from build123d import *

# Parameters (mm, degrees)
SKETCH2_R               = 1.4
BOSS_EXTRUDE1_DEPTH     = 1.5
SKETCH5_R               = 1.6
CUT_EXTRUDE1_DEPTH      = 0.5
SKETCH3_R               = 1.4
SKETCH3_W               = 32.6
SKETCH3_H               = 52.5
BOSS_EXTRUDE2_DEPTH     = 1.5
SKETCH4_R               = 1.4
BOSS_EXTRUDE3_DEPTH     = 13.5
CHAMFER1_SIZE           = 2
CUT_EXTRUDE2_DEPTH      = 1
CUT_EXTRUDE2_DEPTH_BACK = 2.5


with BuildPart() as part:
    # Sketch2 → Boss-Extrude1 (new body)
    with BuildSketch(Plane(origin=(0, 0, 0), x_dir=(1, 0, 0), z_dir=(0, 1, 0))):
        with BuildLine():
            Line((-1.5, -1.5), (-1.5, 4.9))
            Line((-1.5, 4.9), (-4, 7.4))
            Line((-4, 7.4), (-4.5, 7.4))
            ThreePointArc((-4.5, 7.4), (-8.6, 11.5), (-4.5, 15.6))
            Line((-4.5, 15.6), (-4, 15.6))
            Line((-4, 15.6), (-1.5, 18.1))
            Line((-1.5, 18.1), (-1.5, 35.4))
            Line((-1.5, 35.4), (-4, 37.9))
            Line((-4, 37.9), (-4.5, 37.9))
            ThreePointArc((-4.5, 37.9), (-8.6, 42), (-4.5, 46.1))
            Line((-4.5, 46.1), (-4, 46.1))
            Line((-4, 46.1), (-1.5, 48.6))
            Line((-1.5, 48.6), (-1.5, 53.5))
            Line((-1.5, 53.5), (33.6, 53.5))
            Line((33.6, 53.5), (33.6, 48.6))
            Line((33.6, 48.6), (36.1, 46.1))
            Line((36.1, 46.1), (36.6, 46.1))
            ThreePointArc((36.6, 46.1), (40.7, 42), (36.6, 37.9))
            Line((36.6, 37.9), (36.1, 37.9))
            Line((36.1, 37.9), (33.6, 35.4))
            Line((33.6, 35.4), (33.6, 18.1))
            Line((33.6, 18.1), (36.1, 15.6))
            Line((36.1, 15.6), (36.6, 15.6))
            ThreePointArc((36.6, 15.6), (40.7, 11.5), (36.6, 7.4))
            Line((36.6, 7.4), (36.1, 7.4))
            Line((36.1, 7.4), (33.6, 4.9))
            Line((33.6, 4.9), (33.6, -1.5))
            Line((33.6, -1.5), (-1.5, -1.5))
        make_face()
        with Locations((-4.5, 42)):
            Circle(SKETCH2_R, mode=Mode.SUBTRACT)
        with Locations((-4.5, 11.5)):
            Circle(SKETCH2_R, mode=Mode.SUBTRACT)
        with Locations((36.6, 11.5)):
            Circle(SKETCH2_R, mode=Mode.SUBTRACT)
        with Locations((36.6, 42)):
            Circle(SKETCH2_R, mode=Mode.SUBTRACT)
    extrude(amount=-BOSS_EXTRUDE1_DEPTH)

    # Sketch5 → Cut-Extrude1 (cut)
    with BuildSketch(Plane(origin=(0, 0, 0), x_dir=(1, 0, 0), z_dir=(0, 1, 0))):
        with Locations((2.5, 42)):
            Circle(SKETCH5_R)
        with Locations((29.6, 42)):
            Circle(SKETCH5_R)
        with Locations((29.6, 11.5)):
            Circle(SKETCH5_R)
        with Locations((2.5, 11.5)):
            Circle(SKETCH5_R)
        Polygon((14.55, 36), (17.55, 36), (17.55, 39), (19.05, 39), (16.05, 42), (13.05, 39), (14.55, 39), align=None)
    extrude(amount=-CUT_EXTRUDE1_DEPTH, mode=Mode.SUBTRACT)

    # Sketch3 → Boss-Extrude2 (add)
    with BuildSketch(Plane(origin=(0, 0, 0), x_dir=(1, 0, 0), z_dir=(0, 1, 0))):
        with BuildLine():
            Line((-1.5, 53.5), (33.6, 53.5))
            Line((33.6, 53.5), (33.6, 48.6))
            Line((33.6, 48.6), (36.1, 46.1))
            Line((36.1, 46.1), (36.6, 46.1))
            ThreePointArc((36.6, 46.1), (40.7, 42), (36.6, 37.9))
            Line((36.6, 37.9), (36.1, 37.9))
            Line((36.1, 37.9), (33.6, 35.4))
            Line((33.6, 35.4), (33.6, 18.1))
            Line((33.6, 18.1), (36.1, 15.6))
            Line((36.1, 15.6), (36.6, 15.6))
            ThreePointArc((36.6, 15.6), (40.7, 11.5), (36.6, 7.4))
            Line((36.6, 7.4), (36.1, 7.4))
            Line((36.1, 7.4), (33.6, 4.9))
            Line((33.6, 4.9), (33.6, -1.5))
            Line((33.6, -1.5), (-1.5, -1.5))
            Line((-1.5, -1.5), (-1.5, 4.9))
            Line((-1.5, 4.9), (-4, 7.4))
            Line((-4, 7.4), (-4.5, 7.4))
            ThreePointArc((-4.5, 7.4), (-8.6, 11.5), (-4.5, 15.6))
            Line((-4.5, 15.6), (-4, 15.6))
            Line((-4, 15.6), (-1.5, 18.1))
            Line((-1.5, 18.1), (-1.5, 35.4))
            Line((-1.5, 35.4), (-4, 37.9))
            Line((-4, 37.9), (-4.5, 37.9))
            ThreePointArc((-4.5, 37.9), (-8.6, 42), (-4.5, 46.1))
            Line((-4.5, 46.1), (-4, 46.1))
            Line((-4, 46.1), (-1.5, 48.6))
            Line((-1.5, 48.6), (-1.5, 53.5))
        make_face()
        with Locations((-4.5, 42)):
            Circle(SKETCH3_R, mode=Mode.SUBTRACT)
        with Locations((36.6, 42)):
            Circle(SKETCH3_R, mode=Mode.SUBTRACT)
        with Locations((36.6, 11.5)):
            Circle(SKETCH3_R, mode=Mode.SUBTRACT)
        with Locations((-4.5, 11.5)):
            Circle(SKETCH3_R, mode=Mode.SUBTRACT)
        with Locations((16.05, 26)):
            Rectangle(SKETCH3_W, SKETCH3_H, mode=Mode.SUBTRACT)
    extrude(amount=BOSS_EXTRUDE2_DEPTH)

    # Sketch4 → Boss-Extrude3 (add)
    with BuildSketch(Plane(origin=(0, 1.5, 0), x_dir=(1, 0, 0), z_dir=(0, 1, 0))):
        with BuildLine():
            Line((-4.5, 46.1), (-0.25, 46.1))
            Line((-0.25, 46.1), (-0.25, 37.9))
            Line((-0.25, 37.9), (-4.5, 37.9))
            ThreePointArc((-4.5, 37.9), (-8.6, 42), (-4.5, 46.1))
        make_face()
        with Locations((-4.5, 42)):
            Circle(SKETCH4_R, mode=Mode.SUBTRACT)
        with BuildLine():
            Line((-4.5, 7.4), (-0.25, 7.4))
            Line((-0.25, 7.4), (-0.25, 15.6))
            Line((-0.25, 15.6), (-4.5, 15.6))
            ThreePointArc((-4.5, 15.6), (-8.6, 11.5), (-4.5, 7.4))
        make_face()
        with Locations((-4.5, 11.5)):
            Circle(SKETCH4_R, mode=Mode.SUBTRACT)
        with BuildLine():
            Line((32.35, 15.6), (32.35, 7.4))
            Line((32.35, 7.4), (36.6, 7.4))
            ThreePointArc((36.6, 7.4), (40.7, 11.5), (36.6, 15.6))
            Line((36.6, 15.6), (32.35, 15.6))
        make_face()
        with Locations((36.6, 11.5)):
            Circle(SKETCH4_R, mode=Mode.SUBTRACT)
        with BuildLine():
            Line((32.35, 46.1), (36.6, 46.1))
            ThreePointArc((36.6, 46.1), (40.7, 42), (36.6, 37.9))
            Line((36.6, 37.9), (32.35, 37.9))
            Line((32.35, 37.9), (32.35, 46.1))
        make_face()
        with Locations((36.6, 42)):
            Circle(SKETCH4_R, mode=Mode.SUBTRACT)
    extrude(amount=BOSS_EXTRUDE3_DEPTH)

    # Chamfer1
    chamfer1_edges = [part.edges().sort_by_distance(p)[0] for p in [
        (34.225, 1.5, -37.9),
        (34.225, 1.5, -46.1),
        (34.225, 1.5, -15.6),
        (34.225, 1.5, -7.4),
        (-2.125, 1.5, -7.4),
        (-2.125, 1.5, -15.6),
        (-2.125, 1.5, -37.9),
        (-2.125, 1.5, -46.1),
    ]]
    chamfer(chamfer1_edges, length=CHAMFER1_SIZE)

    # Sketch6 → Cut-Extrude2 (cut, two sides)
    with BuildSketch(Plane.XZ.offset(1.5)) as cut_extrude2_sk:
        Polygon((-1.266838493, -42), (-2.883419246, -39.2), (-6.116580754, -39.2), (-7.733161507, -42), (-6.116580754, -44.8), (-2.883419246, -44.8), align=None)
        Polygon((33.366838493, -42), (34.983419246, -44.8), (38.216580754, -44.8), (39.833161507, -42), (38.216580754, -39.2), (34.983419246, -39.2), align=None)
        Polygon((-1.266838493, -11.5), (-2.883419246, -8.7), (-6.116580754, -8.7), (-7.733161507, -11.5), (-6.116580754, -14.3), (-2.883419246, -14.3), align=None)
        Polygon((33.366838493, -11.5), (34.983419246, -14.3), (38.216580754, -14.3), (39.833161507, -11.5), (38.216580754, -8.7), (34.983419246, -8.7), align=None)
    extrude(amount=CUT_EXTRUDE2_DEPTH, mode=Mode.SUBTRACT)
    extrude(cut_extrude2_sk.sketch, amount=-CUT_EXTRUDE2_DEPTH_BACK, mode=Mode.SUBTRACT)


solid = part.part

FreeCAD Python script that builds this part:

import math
import FreeCAD as App
import Part
import Sketcher

V = App.Vector
Q = App.Units.Quantity


def edges_at(feature, points):
    """Names of the edges that pass closest to the given points."""
    edges = feature.Shape.Edges
    near = lambda p: min(range(len(edges)), key=lambda i: edges[i].distToShape(Part.Vertex(*p))[0])
    return sorted({f"Edge{near(p) + 1}" for p in points})


def add_polygon(sketch, points):
    """Adds a closed chain of lines whose ends are joined by coincident constraints."""
    first, n = sketch.GeometryCount, len(points)
    for a, b in zip(points, points[1:] + points[:1]):
        sketch.addGeometry(Part.LineSegment(App.Vector(*a, 0), App.Vector(*b, 0)), False)
    for i in range(n):
        sketch.addConstraint(Sketcher.Constraint("Coincident", first + i, 2, first + (i + 1) % n, 1))

doc = App.newDocument("Part")
body = doc.addObject("PartDesign::Body", "Body")

# Sketch on XZ plane
sketch1 = body.newObject("Sketcher::SketchObject", "Sketch")
sketch1.AttachmentSupport = (doc.getObject("XZ_Plane"), [""])
sketch1.MapMode = "FlatFace"
sketch1.addGeometry([
    Part.LineSegment(V(-1.5, -4.9, 0), V(-1.5, 1.5, 0)),  # 0
    Part.LineSegment(V(-1.5, 1.5, 0), V(33.6, 1.5, 0)),  # 1
    Part.LineSegment(V(33.6, 1.5, 0), V(33.6, -4.9, 0)),  # 2
    Part.LineSegment(V(33.6, -4.9, 0), V(36.1, -7.4, 0)),  # 3
    Part.LineSegment(V(36.1, -7.4, 0), V(36.6, -7.4, 0)),  # 4
    Part.ArcOfCircle(Part.Circle(V(36.6, -11.5, 0), V(0, 0, 1), 4.1), math.radians(-90), math.radians(90)),  # 5
    Part.LineSegment(V(36.6, -15.6, 0), V(36.1, -15.6, 0)),  # 6
    Part.LineSegment(V(36.1, -15.6, 0), V(33.6, -18.1, 0)),  # 7
    Part.LineSegment(V(33.6, -18.1, 0), V(33.6, -35.4, 0)),  # 8
    Part.LineSegment(V(33.6, -35.4, 0), V(36.1, -37.9, 0)),  # 9
    Part.LineSegment(V(36.1, -37.9, 0), V(36.6, -37.9, 0)),  # 10
    Part.ArcOfCircle(Part.Circle(V(36.6, -42, 0), V(0, 0, 1), 4.1), math.radians(-90), math.radians(90)),  # 11
    Part.LineSegment(V(36.6, -46.1, 0), V(36.1, -46.1, 0)),  # 12
    Part.LineSegment(V(36.1, -46.1, 0), V(33.6, -48.6, 0)),  # 13
    Part.LineSegment(V(33.6, -48.6, 0), V(33.6, -53.5, 0)),  # 14
    Part.LineSegment(V(33.6, -53.5, 0), V(-1.5, -53.5, 0)),  # 15
    Part.LineSegment(V(-1.5, -53.5, 0), V(-1.5, -48.6, 0)),  # 16
    Part.LineSegment(V(-1.5, -48.6, 0), V(-4, -46.1, 0)),  # 17
    Part.LineSegment(V(-4, -46.1, 0), V(-4.5, -46.1, 0)),  # 18
    Part.ArcOfCircle(Part.Circle(V(-4.5, -42, 0), V(0, 0, 1), 4.1), math.radians(90), math.radians(270)),  # 19
    Part.LineSegment(V(-4.5, -37.9, 0), V(-4, -37.9, 0)),  # 20
    Part.LineSegment(V(-4, -37.9, 0), V(-1.5, -35.4, 0)),  # 21
    Part.LineSegment(V(-1.5, -35.4, 0), V(-1.5, -18.1, 0)),  # 22
    Part.LineSegment(V(-1.5, -18.1, 0), V(-4, -15.6, 0)),  # 23
    Part.LineSegment(V(-4, -15.6, 0), V(-4.5, -15.6, 0)),  # 24
    Part.ArcOfCircle(Part.Circle(V(-4.5, -11.5, 0), V(0, 0, 1), 4.1), math.radians(90), math.radians(270)),  # 25
    Part.LineSegment(V(-4.5, -7.4, 0), V(-4, -7.4, 0)),  # 26
    Part.LineSegment(V(-4, -7.4, 0), V(-1.5, -4.9, 0)),  # 27
    Part.Circle(V(36.6, -11.5, 0), V(0, 0, 1), 1.4),  # 28
    Part.Circle(V(-4.5, -11.5, 0), V(0, 0, 1), 1.4),  # 29
    Part.Circle(V(36.6, -42, 0), V(0, 0, 1), 1.4),  # 30
    Part.Circle(V(-4.5, -42, 0), V(0, 0, 1), 1.4),  # 31
], False)
sketch1.addConstraint([
    Sketcher.Constraint("Coincident", 0, 2, 1, 1),
    Sketcher.Constraint("Coincident", 1, 2, 2, 1),
    Sketcher.Constraint("Coincident", 2, 2, 3, 1),
    Sketcher.Constraint("Coincident", 3, 2, 4, 1),
    Sketcher.Constraint("Tangent", 4, 2, 5, 2),
    Sketcher.Constraint("Tangent", 5, 1, 6, 1),
    Sketcher.Constraint("Coincident", 6, 2, 7, 1),
    Sketcher.Constraint("Coincident", 7, 2, 8, 1),
    Sketcher.Constraint("Coincident", 8, 2, 9, 1),
    Sketcher.Constraint("Coincident", 9, 2, 10, 1),
    Sketcher.Constraint("Tangent", 10, 2, 11, 2),
    Sketcher.Constraint("Tangent", 11, 1, 12, 1),
    Sketcher.Constraint("Coincident", 12, 2, 13, 1),
    Sketcher.Constraint("Coincident", 13, 2, 14, 1),
    Sketcher.Constraint("Coincident", 14, 2, 15, 1),
    Sketcher.Constraint("Coincident", 15, 2, 16, 1),
    Sketcher.Constraint("Coincident", 16, 2, 17, 1),
    Sketcher.Constraint("Coincident", 17, 2, 18, 1),
    Sketcher.Constraint("Tangent", 18, 2, 19, 2),
    Sketcher.Constraint("Tangent", 19, 1, 20, 1),
    Sketcher.Constraint("Coincident", 20, 2, 21, 1),
    Sketcher.Constraint("Coincident", 21, 2, 22, 1),
    Sketcher.Constraint("Coincident", 22, 2, 23, 1),
    Sketcher.Constraint("Coincident", 23, 2, 24, 1),
    Sketcher.Constraint("Tangent", 24, 2, 25, 2),
    Sketcher.Constraint("Tangent", 25, 1, 26, 1),
    Sketcher.Constraint("Coincident", 26, 2, 27, 1),
    Sketcher.Constraint("Coincident", 27, 2, 0, 1),
    Sketcher.Constraint("Vertical", 0),
    Sketcher.Constraint("Horizontal", 1),
    Sketcher.Constraint("Vertical", 2),
    Sketcher.Constraint("Horizontal", 4),
    Sketcher.Constraint("Horizontal", 6),
    Sketcher.Constraint("Vertical", 8),
    Sketcher.Constraint("Horizontal", 10),
    Sketcher.Constraint("Horizontal", 12),
    Sketcher.Constraint("Vertical", 14),
    Sketcher.Constraint("Horizontal", 15),
    Sketcher.Constraint("Vertical", 16),
    Sketcher.Constraint("Horizontal", 18),
    Sketcher.Constraint("Horizontal", 20),
    Sketcher.Constraint("Vertical", 22),
    Sketcher.Constraint("Horizontal", 24),
    Sketcher.Constraint("Horizontal", 26),
    Sketcher.Constraint("Coincident", 28, 3, 5, 3),
    Sketcher.Constraint("Coincident", 29, 3, 25, 3),
    Sketcher.Constraint("Coincident", 30, 3, 11, 3),
    Sketcher.Constraint("Coincident", 31, 3, 19, 3),
    Sketcher.Constraint("Equal", 5, 11),
    Sketcher.Constraint("Equal", 11, 19),
    Sketcher.Constraint("Equal", 19, 25),
    Sketcher.Constraint("Equal", 28, 29),
    Sketcher.Constraint("Equal", 29, 30),
    Sketcher.Constraint("Equal", 30, 31),
    Sketcher.Constraint("Perpendicular", 3, 7),
    Sketcher.Constraint("Perpendicular", 7, 9),
    Sketcher.Constraint("Perpendicular", 9, 13),
    Sketcher.Constraint("Perpendicular", 13, 17),
    Sketcher.Constraint("Perpendicular", 17, 21),
    Sketcher.Constraint("Perpendicular", 21, 23),
    Sketcher.Constraint("Perpendicular", 23, 27),
    Sketcher.Constraint("Horizontal", 11, 3, 19, 3),
    Sketcher.Constraint("Horizontal", 5, 3, 25, 3),
    Sketcher.Constraint("Horizontal", 13, 2, 16, 2),
    Sketcher.Constraint("Horizontal", 8, 2, 21, 2),
    Sketcher.Constraint("Horizontal", 7, 2, 22, 2),
    Sketcher.Constraint("Horizontal", 2, 2, 27, 2),
    Sketcher.Constraint("Vertical", 5, 3, 11, 3),
    Sketcher.Constraint("Vertical", 19, 3, 25, 3),
    Sketcher.Constraint("Vertical", 3, 2, 6, 2),
    Sketcher.Constraint("Vertical", 2, 2, 7, 2),
    Sketcher.Constraint("Vertical", 6, 2, 9, 2),
    Sketcher.Constraint("Vertical", 9, 2, 12, 2),
    Sketcher.Constraint("Vertical", 8, 2, 13, 2),
    Sketcher.Constraint("Vertical", 0, 2, 15, 2),
    Sketcher.Constraint("Vertical", 17, 2, 20, 2),
    Sketcher.Constraint("Vertical", 16, 2, 21, 2),
    Sketcher.Constraint("Equal", 12, 18),
    Sketcher.Constraint("Diameter", 28, 2.8),
    Sketcher.Constraint("Radius", 5, 4.1),
    Sketcher.Constraint("DistanceX", 1, 1, 1, 2, 35.1),
    Sketcher.Constraint("DistanceX", 4, 1, 4, 2, 0.5),
    Sketcher.Constraint("DistanceY", 0, 1, 0, 2, 6.4),
    Sketcher.Constraint("DistanceY", 8, 2, 8, 1, 17.3),
    Sketcher.Constraint("DistanceY", 14, 2, 14, 1, 4.9),
    Sketcher.Constraint("DistanceY", 11, 3, -1, 1, 42.0),
    Sketcher.Constraint("DistanceX", 17, 2, -1, 1, 4.0),
    Sketcher.Constraint("DistanceX", 25, 3, 0, 2, 3.0),
])
pad1 = body.newObject("PartDesign::Pad", "Pad")
pad1.Profile = sketch1
pad1.Length = 1.5

# Sketch on XZ plane
sketch2 = body.newObject("Sketcher::SketchObject", "Sketch001")
sketch2.AttachmentSupport = (doc.getObject("XZ_Plane"), [""])
sketch2.MapMode = "FlatFace"
sketch2.addGeometry(Part.Circle(V(2.5, -42, 0), V(0, 0, 1), 1.6), False)  # 0
sketch2.addGeometry(Part.Circle(V(29.6, -42, 0), V(0, 0, 1), 1.6), False)  # 1
sketch2.addGeometry(Part.Circle(V(29.6, -11.5, 0), V(0, 0, 1), 1.6), False)  # 2
sketch2.addGeometry(Part.Circle(V(2.5, -11.5, 0), V(0, 0, 1), 1.6), False)  # 3
add_polygon(sketch2, [(14.6, -36), (17.6, -36), (17.6, -39), (19.1, -39), (16.1, -42), (13.1, -39), (14.6, -39)])  # lines 4-10
sketch2.addConstraint([
    Sketcher.Constraint("Horizontal", 4),
    Sketcher.Constraint("Vertical", 5),
    Sketcher.Constraint("Horizontal", 6),
    Sketcher.Constraint("Horizontal", 9),
    Sketcher.Constraint("Vertical", 10),
    Sketcher.Constraint("Equal", 0, 1),
    Sketcher.Constraint("Equal", 1, 2),
    Sketcher.Constraint("Equal", 2, 3),
    Sketcher.Constraint("Perpendicular", 7, 8),
    Sketcher.Constraint("Horizontal", 0, 3, 1, 3),
    Sketcher.Constraint("Horizontal", 2, 3, 3, 3),
    Sketcher.Constraint("Horizontal", 1, 3, 7, 2),
    Sketcher.Constraint("Horizontal", 6, 2, 8, 2),
    Sketcher.Constraint("Vertical", 1, 3, 2, 3),
    Sketcher.Constraint("Vertical", 0, 3, 3, 3),
    Sketcher.Constraint("Equal", 6, 9),
    Sketcher.Constraint("Equal", 4, 5),
    Sketcher.Constraint("Equal", 7, 8),
    Sketcher.Constraint("Diameter", 0, 3.2),
    Sketcher.Constraint("DistanceX", 4, 1, 4, 2, 3.0),
    Sketcher.Constraint("DistanceX", 6, 1, 6, 2, 1.5),
    Sketcher.Constraint("DistanceY", 0, 3, -1, 1, 42.0),
    Sketcher.Constraint("DistanceX", -1, 1, 0, 3, 2.5),
    Sketcher.Constraint("DistanceX", -1, 1, 1, 3, 29.6),
    Sketcher.Constraint("DistanceY", 2, 3, -1, 1, 11.5),
    Sketcher.Constraint("DistanceX", -1, 1, 4, 2, 17.55),
])
pocket1 = body.newObject("PartDesign::Pocket", "Pocket")
pocket1.Profile = sketch2
pocket1.Length = 0.5
pocket1.Reversed = True

# Sketch on XZ plane
sketch3 = body.newObject("Sketcher::SketchObject", "Sketch002")
sketch3.AttachmentSupport = (doc.getObject("XZ_Plane"), [""])
sketch3.MapMode = "FlatFace"
sketch3.addGeometry(Part.LineSegment(V(33.6, -53.5, 0), V(-1.5, -53.5, 0)), False)  # 0
sketch3.addGeometry(Part.LineSegment(V(-1.5, -53.5, 0), V(-1.5, -48.6, 0)), False)  # 1
sketch3.addGeometry(Part.LineSegment(V(-1.5, -48.6, 0), V(-4, -46.1, 0)), False)  # 2
sketch3.addGeometry(Part.LineSegment(V(-4, -46.1, 0), V(-4.5, -46.1, 0)), False)  # 3
sketch3.addGeometry(Part.ArcOfCircle(Part.Circle(V(-4.5, -42, 0), V(0, 0, 1), 4.1), math.radians(90), math.radians(270)), False)  # 4
sketch3.addGeometry(Part.LineSegment(V(-4.5, -37.9, 0), V(-4, -37.9, 0)), False)  # 5
sketch3.addGeometry(Part.LineSegment(V(-4, -37.9, 0), V(-1.5, -35.4, 0)), False)  # 6
sketch3.addGeometry(Part.LineSegment(V(-1.5, -35.4, 0), V(-1.5, -18.1, 0)), False)  # 7
sketch3.addGeometry(Part.LineSegment(V(-1.5, -18.1, 0), V(-4, -15.6, 0)), False)  # 8
sketch3.addGeometry(Part.LineSegment(V(-4, -15.6, 0), V(-4.5, -15.6, 0)), False)  # 9
sketch3.addGeometry(Part.ArcOfCircle(Part.Circle(V(-4.5, -11.5, 0), V(0, 0, 1), 4.1), math.radians(90), math.radians(270)), False)  # 10
sketch3.addGeometry(Part.LineSegment(V(-4.5, -7.4, 0), V(-4, -7.4, 0)), False)  # 11
sketch3.addGeometry(Part.LineSegment(V(-4, -7.4, 0), V(-1.5, -4.9, 0)), False)  # 12
sketch3.addGeometry(Part.LineSegment(V(-1.5, -4.9, 0), V(-1.5, 1.5, 0)), False)  # 13
sketch3.addGeometry(Part.LineSegment(V(-1.5, 1.5, 0), V(33.6, 1.5, 0)), False)  # 14
sketch3.addGeometry(Part.LineSegment(V(33.6, 1.5, 0), V(33.6, -4.9, 0)), False)  # 15
sketch3.addGeometry(Part.LineSegment(V(33.6, -4.9, 0), V(36.1, -7.4, 0)), False)  # 16
sketch3.addGeometry(Part.LineSegment(V(36.1, -7.4, 0), V(36.6, -7.4, 0)), False)  # 17
sketch3.addGeometry(Part.ArcOfCircle(Part.Circle(V(36.6, -11.5, 0), V(0, 0, 1), 4.1), math.radians(-90), math.radians(90)), False)  # 18
sketch3.addGeometry(Part.LineSegment(V(36.6, -15.6, 0), V(36.1, -15.6, 0)), False)  # 19
sketch3.addGeometry(Part.LineSegment(V(36.1, -15.6, 0), V(33.6, -18.1, 0)), False)  # 20
sketch3.addGeometry(Part.LineSegment(V(33.6, -18.1, 0), V(33.6, -35.4, 0)), False)  # 21
sketch3.addGeometry(Part.LineSegment(V(33.6, -35.4, 0), V(36.1, -37.9, 0)), False)  # 22
sketch3.addGeometry(Part.LineSegment(V(36.1, -37.9, 0), V(36.6, -37.9, 0)), False)  # 23
sketch3.addGeometry(Part.ArcOfCircle(Part.Circle(V(36.6, -42, 0), V(0, 0, 1), 4.1), math.radians(-90), math.radians(90)), False)  # 24
sketch3.addGeometry(Part.LineSegment(V(36.6, -46.1, 0), V(36.1, -46.1, 0)), False)  # 25
sketch3.addGeometry(Part.LineSegment(V(36.1, -46.1, 0), V(33.6, -48.6, 0)), False)  # 26
sketch3.addGeometry(Part.LineSegment(V(33.6, -48.6, 0), V(33.6, -53.5, 0)), False)  # 27
sketch3.addGeometry(Part.Circle(V(36.6, -11.5, 0), V(0, 0, 1), 1.4), False)  # 28
sketch3.addGeometry(Part.Circle(V(-4.5, -11.5, 0), V(0, 0, 1), 1.4), False)  # 29
sketch3.addGeometry(Part.Circle(V(36.6, -42, 0), V(0, 0, 1), 1.4), False)  # 30
add_polygon(sketch3, [(-0.2, 0.2), (-0.2, -52.2), (32.4, -52.2), (32.4, 0.2)])  # lines 31-34
sketch3.addGeometry(Part.Circle(V(-4.5, -42, 0), V(0, 0, 1), 1.4), False)  # 35
sketch3.addConstraint([
    Sketcher.Constraint("Coincident", 0, 2, 1, 1),
    Sketcher.Constraint("Coincident", 1, 2, 2, 1),
    Sketcher.Constraint("Coincident", 2, 2, 3, 1),
    Sketcher.Constraint("Tangent", 3, 2, 4, 2),
    Sketcher.Constraint("Tangent", 4, 1, 5, 1),
    Sketcher.Constraint("Coincident", 5, 2, 6, 1),
    Sketcher.Constraint("Coincident", 6, 2, 7, 1),
    Sketcher.Constraint("Coincident", 7, 2, 8, 1),
    Sketcher.Constraint("Coincident", 8, 2, 9, 1),
    Sketcher.Constraint("Tangent", 9, 2, 10, 2),
    Sketcher.Constraint("Tangent", 10, 1, 11, 1),
    Sketcher.Constraint("Coincident", 11, 2, 12, 1),
    Sketcher.Constraint("Coincident", 12, 2, 13, 1),
    Sketcher.Constraint("Coincident", 13, 2, 14, 1),
    Sketcher.Constraint("Coincident", 14, 2, 15, 1),
    Sketcher.Constraint("Coincident", 15, 2, 16, 1),
    Sketcher.Constraint("Coincident", 16, 2, 17, 1),
    Sketcher.Constraint("Tangent", 17, 2, 18, 2),
    Sketcher.Constraint("Tangent", 18, 1, 19, 1),
    Sketcher.Constraint("Coincident", 19, 2, 20, 1),
    Sketcher.Constraint("Coincident", 20, 2, 21, 1),
    Sketcher.Constraint("Coincident", 21, 2, 22, 1),
    Sketcher.Constraint("Coincident", 22, 2, 23, 1),
    Sketcher.Constraint("Tangent", 23, 2, 24, 2),
    Sketcher.Constraint("Tangent", 24, 1, 25, 1),
    Sketcher.Constraint("Coincident", 25, 2, 26, 1),
    Sketcher.Constraint("Coincident", 26, 2, 27, 1),
    Sketcher.Constraint("Coincident", 27, 2, 0, 1),
    Sketcher.Constraint("Horizontal", 0),
    Sketcher.Constraint("Vertical", 1),
    Sketcher.Constraint("Horizontal", 3),
    Sketcher.Constraint("Horizontal", 5),
    Sketcher.Constraint("Vertical", 7),
    Sketcher.Constraint("Horizontal", 9),
    Sketcher.Constraint("Horizontal", 11),
    Sketcher.Constraint("Vertical", 13),
    Sketcher.Constraint("Horizontal", 14),
    Sketcher.Constraint("Vertical", 15),
    Sketcher.Constraint("Horizontal", 17),
    Sketcher.Constraint("Horizontal", 19),
    Sketcher.Constraint("Vertical", 21),
    Sketcher.Constraint("Horizontal", 23),
    Sketcher.Constraint("Horizontal", 25),
    Sketcher.Constraint("Vertical", 27),
    Sketcher.Constraint("Vertical", 31),
    Sketcher.Constraint("Horizontal", 32),
    Sketcher.Constraint("Vertical", 33),
    Sketcher.Constraint("Horizontal", 34),
    Sketcher.Constraint("Coincident", 28, 3, 18, 3),
    Sketcher.Constraint("Coincident", 29, 3, 10, 3),
    Sketcher.Constraint("Coincident", 30, 3, 24, 3),
    Sketcher.Constraint("Coincident", 35, 3, 4, 3),
    Sketcher.Constraint("Equal", 4, 10),
    Sketcher.Constraint("Equal", 10, 18),
    Sketcher.Constraint("Equal", 18, 24),
    Sketcher.Constraint("Equal", 28, 29),
    Sketcher.Constraint("Equal", 29, 30),
    Sketcher.Constraint("Equal", 30, 35),
    Sketcher.Constraint("Perpendicular", 2, 6),
    Sketcher.Constraint("Perpendicular", 6, 8),
    Sketcher.Constraint("Perpendicular", 8, 12),
    Sketcher.Constraint("Perpendicular", 12, 16),
    Sketcher.Constraint("Perpendicular", 16, 20),
    Sketcher.Constraint("Perpendicular", 20, 22),
    Sketcher.Constraint("Perpendicular", 22, 26),
    Sketcher.Constraint("Horizontal", 10, 3, 18, 3),
    Sketcher.Constraint("Horizontal", 4, 3, 24, 3),
    Sketcher.Constraint("Horizontal", 12, 2, 15, 2),
    Sketcher.Constraint("Horizontal", 7, 2, 20, 2),
    Sketcher.Constraint("Horizontal", 6, 2, 21, 2),
    Sketcher.Constraint("Horizontal", 1, 2, 26, 2),
    Sketcher.Constraint("Vertical", 4, 3, 10, 3),
    Sketcher.Constraint("Vertical", 18, 3, 24, 3),
    Sketcher.Constraint("Vertical", 2, 2, 5, 2),
    Sketcher.Constraint("Vertical", 1, 2, 6, 2),
    Sketcher.Constraint("Vertical", 5, 2, 8, 2),
    Sketcher.Constraint("Vertical", 8, 2, 11, 2),
    Sketcher.Constraint("Vertical", 7, 2, 12, 2),
    Sketcher.Constraint("Vertical", 16, 2, 19, 2),
    Sketcher.Constraint("Vertical", 15, 2, 20, 2),
    Sketcher.Constraint("Vertical", 22, 2, 25, 2),
    Sketcher.Constraint("Equal", 11, 17),
    Sketcher.Constraint("Diameter", 28, 2.8),
    Sketcher.Constraint("Radius", 4, 4.1),
    Sketcher.Constraint("DistanceX", 0, 2, 0, 1, 35.1),
    Sketcher.Constraint("DistanceX", 3, 2, 3, 1, 0.5),
    Sketcher.Constraint("DistanceX", 32, 1, 32, 2, 32.6),
    Sketcher.Constraint("DistanceY", 1, 1, 1, 2, 4.9),
    Sketcher.Constraint("DistanceY", 7, 1, 7, 2, 17.3),
    Sketcher.Constraint("DistanceY", 13, 1, 13, 2, 6.4),
    Sketcher.Constraint("DistanceY", 31, 2, 31, 1, 52.5),
    Sketcher.Constraint("DistanceY", 4, 3, -1, 1, 42.0),
    Sketcher.Constraint("DistanceX", 2, 2, -1, 1, 4.0),
    Sketcher.Constraint("DistanceX", 4, 3, 0, 2, 3.0),
    Sketcher.Constraint("DistanceX", 31, 2, -1, 1, 0.25),
    Sketcher.Constraint("DistanceY", 31, 2, -1, 1, 52.25),
])
pad2 = body.newObject("PartDesign::Pad", "Pad001")
pad2.Profile = sketch3
pad2.Length = 1.5
pad2.Reversed = True

# Sketch on XZ plane
sketch4 = body.newObject("Sketcher::SketchObject", "Sketch003")
sketch4.AttachmentSupport = (doc.getObject("XZ_Plane"), [""])
sketch4.MapMode = "FlatFace"
sketch4.AttachmentOffset = App.Placement(V(0, 0, -1.5), App.Rotation())
sketch4.addGeometry([
    Part.LineSegment(V(-0.2, -46.1, 0), V(-4.5, -46.1, 0)),  # 0
    Part.ArcOfCircle(Part.Circle(V(-4.5, -42, 0), V(0, 0, 1), 4.1), math.radians(90), math.radians(270)),  # 1
    Part.LineSegment(V(-4.5, -37.9, 0), V(-0.2, -37.9, 0)),  # 2
    Part.LineSegment(V(-0.2, -37.9, 0), V(-0.2, -46.1, 0)),  # 3
    Part.Circle(V(-4.5, -42, 0), V(0, 0, 1), 1.4),  # 4
    Part.LineSegment(V(-4.5, -7.4, 0), V(-0.2, -7.4, 0)),  # 5
    Part.LineSegment(V(-0.2, -7.4, 0), V(-0.2, -15.6, 0)),  # 6
    Part.LineSegment(V(-0.2, -15.6, 0), V(-4.5, -15.6, 0)),  # 7
    Part.ArcOfCircle(Part.Circle(V(-4.5, -11.5, 0), V(0, 0, 1), 4.1), math.radians(90), math.radians(270)),  # 8
    Part.Circle(V(-4.5, -11.5, 0), V(0, 0, 1), 1.4),  # 9
    Part.LineSegment(V(32.4, -15.6, 0), V(32.4, -7.4, 0)),  # 10
    Part.LineSegment(V(32.4, -7.4, 0), V(36.6, -7.4, 0)),  # 11
    Part.ArcOfCircle(Part.Circle(V(36.6, -11.5, 0), V(0, 0, 1), 4.1), math.radians(-90), math.radians(90)),  # 12
    Part.LineSegment(V(36.6, -15.6, 0), V(32.4, -15.6, 0)),  # 13
    Part.Circle(V(36.6, -11.5, 0), V(0, 0, 1), 1.4),  # 14
    Part.LineSegment(V(36.6, -46.1, 0), V(32.4, -46.1, 0)),  # 15
    Part.LineSegment(V(32.4, -46.1, 0), V(32.4, -37.9, 0)),  # 16
    Part.LineSegment(V(32.4, -37.9, 0), V(36.6, -37.9, 0)),  # 17
    Part.ArcOfCircle(Part.Circle(V(36.6, -42, 0), V(0, 0, 1), 4.1), math.radians(-90), math.radians(90)),  # 18
    Part.Circle(V(36.6, -42, 0), V(0, 0, 1), 1.4),  # 19
], False)
sketch4.addConstraint([
    Sketcher.Constraint("Tangent", 0, 2, 1, 2),
    Sketcher.Constraint("Tangent", 1, 1, 2, 1),
    Sketcher.Constraint("Coincident", 2, 2, 3, 1),
    Sketcher.Constraint("Coincident", 3, 2, 0, 1),
    Sketcher.Constraint("Coincident", 5, 2, 6, 1),
    Sketcher.Constraint("Coincident", 6, 2, 7, 1),
    Sketcher.Constraint("Tangent", 7, 2, 8, 2),
    Sketcher.Constraint("Tangent", 8, 1, 5, 1),
    Sketcher.Constraint("Coincident", 10, 2, 11, 1),
    Sketcher.Constraint("Tangent", 11, 2, 12, 2),
    Sketcher.Constraint("Tangent", 12, 1, 13, 1),
    Sketcher.Constraint("Coincident", 13, 2, 10, 1),
    Sketcher.Constraint("Coincident", 15, 2, 16, 1),
    Sketcher.Constraint("Coincident", 16, 2, 17, 1),
    Sketcher.Constraint("Tangent", 17, 2, 18, 2),
    Sketcher.Constraint("Tangent", 18, 1, 15, 1),
    Sketcher.Constraint("Horizontal", 0),
    Sketcher.Constraint("Horizontal", 2),
    Sketcher.Constraint("Vertical", 3),
    Sketcher.Constraint("Horizontal", 5),
    Sketcher.Constraint("Vertical", 6),
    Sketcher.Constraint("Horizontal", 7),
    Sketcher.Constraint("Vertical", 10),
    Sketcher.Constraint("Horizontal", 11),
    Sketcher.Constraint("Horizontal", 13),
    Sketcher.Constraint("Horizontal", 15),
    Sketcher.Constraint("Vertical", 16),
    Sketcher.Constraint("Horizontal", 17),
    Sketcher.Constraint("Coincident", 4, 3, 1, 3),
    Sketcher.Constraint("Coincident", 9, 3, 8, 3),
    Sketcher.Constraint("Coincident", 14, 3, 12, 3),
    Sketcher.Constraint("Coincident", 19, 3, 18, 3),
    Sketcher.Constraint("Equal", 1, 8),
    Sketcher.Constraint("Equal", 4, 9),
    Sketcher.Constraint("Equal", 8, 12),
    Sketcher.Constraint("Equal", 9, 14),
    Sketcher.Constraint("Equal", 12, 18),
    Sketcher.Constraint("Equal", 14, 19),
    Sketcher.Constraint("Horizontal", 9, 3, 12, 3),
    Sketcher.Constraint("Horizontal", 4, 3, 18, 3),
    Sketcher.Constraint("Vertical", 4, 3, 8, 3),
    Sketcher.Constraint("Vertical", 14, 3, 18, 3),
    Sketcher.Constraint("Vertical", 3, 2, 5, 2),
    Sketcher.Constraint("Vertical", 13, 2, 15, 2),
    Sketcher.Constraint("Equal", 7, 11),
    Sketcher.Constraint("Diameter", 4, 2.8),
    Sketcher.Constraint("Radius", 1, 4.1),
    Sketcher.Constraint("DistanceY", 1, 3, -1, 1, 42.0),
    Sketcher.Constraint("DistanceX", 0, 2, 0, 1, 4.25),
    Sketcher.Constraint("DistanceX", 1, 3, -1, 1, 4.5),
    Sketcher.Constraint("DistanceY", 8, 3, -1, 1, 11.5),
    Sketcher.Constraint("DistanceX", -1, 1, 12, 3, 36.6),
])
pad3 = body.newObject("PartDesign::Pad", "Pad002")
pad3.Profile = sketch4
pad3.Length = 13.5
pad3.Reversed = True
doc.recompute()

chamfer = body.newObject("PartDesign::Chamfer", "Chamfer")
chamfer.Base = (pad3, edges_at(pad3, [
    (34.225, 1.5, -37.9),
    (34.225, 1.5, -46.1),
    (34.225, 1.5, -15.6),
    (34.225, 1.5, -7.4),
    (-2.125, 1.5, -7.4),
    (-2.125, 1.5, -15.6),
    (-2.125, 1.5, -37.9),
    (-2.125, 1.5, -46.1),
]))
chamfer.Size = 2

# Sketch on XZ plane
sketch5 = body.newObject("Sketcher::SketchObject", "Sketch004")
sketch5.AttachmentSupport = (doc.getObject("XZ_Plane"), [""])
sketch5.MapMode = "FlatFace"
sketch5.AttachmentOffset = App.Placement(V(0, 0, 1.5), App.Rotation())
add_polygon(sketch5, [(-1.3, -42), (-2.9, -39.2), (-6.1, -39.2), (-7.7, -42), (-6.1, -44.8), (-2.9, -44.8)])  # lines 0-5
add_polygon(sketch5, [(33.4, -42), (35, -44.8), (38.2, -44.8), (39.8, -42), (38.2, -39.2), (35, -39.2)])  # lines 6-11
add_polygon(sketch5, [(-1.3, -11.5), (-2.9, -8.7), (-6.1, -8.7), (-7.7, -11.5), (-6.1, -14.3), (-2.9, -14.3)])  # lines 12-17
add_polygon(sketch5, [(33.4, -11.5), (35, -14.3), (38.2, -14.3), (39.8, -11.5), (38.2, -8.7), (35, -8.7)])  # lines 18-23
sketch5.addConstraint([
    Sketcher.Constraint("Horizontal", 1),
    Sketcher.Constraint("Horizontal", 4),
    Sketcher.Constraint("Horizontal", 7),
    Sketcher.Constraint("Horizontal", 10),
    Sketcher.Constraint("Horizontal", 13),
    Sketcher.Constraint("Horizontal", 16),
    Sketcher.Constraint("Horizontal", 19),
    Sketcher.Constraint("Horizontal", 22),
    Sketcher.Constraint("Parallel", 0, 3),
    Sketcher.Constraint("Parallel", 2, 5),
    Sketcher.Constraint("Parallel", 3, 6),
    Sketcher.Constraint("Parallel", 5, 8),
    Sketcher.Constraint("Parallel", 6, 9),
    Sketcher.Constraint("Parallel", 8, 11),
    Sketcher.Constraint("Parallel", 9, 12),
    Sketcher.Constraint("Parallel", 11, 14),
    Sketcher.Constraint("Parallel", 12, 15),
    Sketcher.Constraint("Parallel", 14, 17),
    Sketcher.Constraint("Parallel", 15, 18),
    Sketcher.Constraint("Parallel", 17, 20),
    Sketcher.Constraint("Parallel", 18, 21),
    Sketcher.Constraint("Parallel", 20, 23),
    Sketcher.Constraint("Horizontal", 2, 2, 5, 2),
    Sketcher.Constraint("Horizontal", 4, 2, 6, 2),
    Sketcher.Constraint("Horizontal", 5, 2, 8, 2),
    Sketcher.Constraint("Horizontal", 1, 2, 9, 2),
    Sketcher.Constraint("Horizontal", 8, 2, 11, 2),
    Sketcher.Constraint("Horizontal", 14, 2, 17, 2),
    Sketcher.Constraint("Horizontal", 16, 2, 18, 2),
    Sketcher.Constraint("Horizontal", 17, 2, 20, 2),
    Sketcher.Constraint("Horizontal", 13, 2, 21, 2),
    Sketcher.Constraint("Horizontal", 20, 2, 23, 2),
    Sketcher.Constraint("Vertical", 1, 2, 3, 2),
    Sketcher.Constraint("Vertical", 0, 2, 4, 2),
    Sketcher.Constraint("Vertical", 4, 2, 12, 2),
    Sketcher.Constraint("Vertical", 3, 2, 13, 2),
    Sketcher.Constraint("Vertical", 2, 2, 14, 2),
    Sketcher.Constraint("Vertical", 13, 2, 15, 2),
    Sketcher.Constraint("Vertical", 10, 2, 18, 2),
    Sketcher.Constraint("Vertical", 9, 2, 19, 2),
    Sketcher.Constraint("Equal", 4, 7),
    Sketcher.Constraint("Angle", 0, Q("120 deg")),
    Sketcher.Constraint("DistanceY", 2, 2, -1, 1, 42.0),
    Sketcher.Constraint("DistanceY", 0, 2, -1, 1, 39.2),
    Sketcher.Constraint("DistanceY", 12, 2, -1, 1, 8.7),
    Sketcher.Constraint("DistanceX", 3, 2, 6, 2, 41.1),
    Sketcher.Constraint("DistanceX", 1, 2, 1, 1, 3.233162),
    Sketcher.Constraint("DistanceX", 0, 2, -1, 1, 2.883419),
])
pocket2 = body.newObject("PartDesign::Pocket", "Pocket001")
pocket2.Profile = sketch5
pocket2.Type = "TwoLengths"
pocket2.Length = 1
pocket2.Length2 = 2.5
pocket2.Reversed = True

doc.recompute()
